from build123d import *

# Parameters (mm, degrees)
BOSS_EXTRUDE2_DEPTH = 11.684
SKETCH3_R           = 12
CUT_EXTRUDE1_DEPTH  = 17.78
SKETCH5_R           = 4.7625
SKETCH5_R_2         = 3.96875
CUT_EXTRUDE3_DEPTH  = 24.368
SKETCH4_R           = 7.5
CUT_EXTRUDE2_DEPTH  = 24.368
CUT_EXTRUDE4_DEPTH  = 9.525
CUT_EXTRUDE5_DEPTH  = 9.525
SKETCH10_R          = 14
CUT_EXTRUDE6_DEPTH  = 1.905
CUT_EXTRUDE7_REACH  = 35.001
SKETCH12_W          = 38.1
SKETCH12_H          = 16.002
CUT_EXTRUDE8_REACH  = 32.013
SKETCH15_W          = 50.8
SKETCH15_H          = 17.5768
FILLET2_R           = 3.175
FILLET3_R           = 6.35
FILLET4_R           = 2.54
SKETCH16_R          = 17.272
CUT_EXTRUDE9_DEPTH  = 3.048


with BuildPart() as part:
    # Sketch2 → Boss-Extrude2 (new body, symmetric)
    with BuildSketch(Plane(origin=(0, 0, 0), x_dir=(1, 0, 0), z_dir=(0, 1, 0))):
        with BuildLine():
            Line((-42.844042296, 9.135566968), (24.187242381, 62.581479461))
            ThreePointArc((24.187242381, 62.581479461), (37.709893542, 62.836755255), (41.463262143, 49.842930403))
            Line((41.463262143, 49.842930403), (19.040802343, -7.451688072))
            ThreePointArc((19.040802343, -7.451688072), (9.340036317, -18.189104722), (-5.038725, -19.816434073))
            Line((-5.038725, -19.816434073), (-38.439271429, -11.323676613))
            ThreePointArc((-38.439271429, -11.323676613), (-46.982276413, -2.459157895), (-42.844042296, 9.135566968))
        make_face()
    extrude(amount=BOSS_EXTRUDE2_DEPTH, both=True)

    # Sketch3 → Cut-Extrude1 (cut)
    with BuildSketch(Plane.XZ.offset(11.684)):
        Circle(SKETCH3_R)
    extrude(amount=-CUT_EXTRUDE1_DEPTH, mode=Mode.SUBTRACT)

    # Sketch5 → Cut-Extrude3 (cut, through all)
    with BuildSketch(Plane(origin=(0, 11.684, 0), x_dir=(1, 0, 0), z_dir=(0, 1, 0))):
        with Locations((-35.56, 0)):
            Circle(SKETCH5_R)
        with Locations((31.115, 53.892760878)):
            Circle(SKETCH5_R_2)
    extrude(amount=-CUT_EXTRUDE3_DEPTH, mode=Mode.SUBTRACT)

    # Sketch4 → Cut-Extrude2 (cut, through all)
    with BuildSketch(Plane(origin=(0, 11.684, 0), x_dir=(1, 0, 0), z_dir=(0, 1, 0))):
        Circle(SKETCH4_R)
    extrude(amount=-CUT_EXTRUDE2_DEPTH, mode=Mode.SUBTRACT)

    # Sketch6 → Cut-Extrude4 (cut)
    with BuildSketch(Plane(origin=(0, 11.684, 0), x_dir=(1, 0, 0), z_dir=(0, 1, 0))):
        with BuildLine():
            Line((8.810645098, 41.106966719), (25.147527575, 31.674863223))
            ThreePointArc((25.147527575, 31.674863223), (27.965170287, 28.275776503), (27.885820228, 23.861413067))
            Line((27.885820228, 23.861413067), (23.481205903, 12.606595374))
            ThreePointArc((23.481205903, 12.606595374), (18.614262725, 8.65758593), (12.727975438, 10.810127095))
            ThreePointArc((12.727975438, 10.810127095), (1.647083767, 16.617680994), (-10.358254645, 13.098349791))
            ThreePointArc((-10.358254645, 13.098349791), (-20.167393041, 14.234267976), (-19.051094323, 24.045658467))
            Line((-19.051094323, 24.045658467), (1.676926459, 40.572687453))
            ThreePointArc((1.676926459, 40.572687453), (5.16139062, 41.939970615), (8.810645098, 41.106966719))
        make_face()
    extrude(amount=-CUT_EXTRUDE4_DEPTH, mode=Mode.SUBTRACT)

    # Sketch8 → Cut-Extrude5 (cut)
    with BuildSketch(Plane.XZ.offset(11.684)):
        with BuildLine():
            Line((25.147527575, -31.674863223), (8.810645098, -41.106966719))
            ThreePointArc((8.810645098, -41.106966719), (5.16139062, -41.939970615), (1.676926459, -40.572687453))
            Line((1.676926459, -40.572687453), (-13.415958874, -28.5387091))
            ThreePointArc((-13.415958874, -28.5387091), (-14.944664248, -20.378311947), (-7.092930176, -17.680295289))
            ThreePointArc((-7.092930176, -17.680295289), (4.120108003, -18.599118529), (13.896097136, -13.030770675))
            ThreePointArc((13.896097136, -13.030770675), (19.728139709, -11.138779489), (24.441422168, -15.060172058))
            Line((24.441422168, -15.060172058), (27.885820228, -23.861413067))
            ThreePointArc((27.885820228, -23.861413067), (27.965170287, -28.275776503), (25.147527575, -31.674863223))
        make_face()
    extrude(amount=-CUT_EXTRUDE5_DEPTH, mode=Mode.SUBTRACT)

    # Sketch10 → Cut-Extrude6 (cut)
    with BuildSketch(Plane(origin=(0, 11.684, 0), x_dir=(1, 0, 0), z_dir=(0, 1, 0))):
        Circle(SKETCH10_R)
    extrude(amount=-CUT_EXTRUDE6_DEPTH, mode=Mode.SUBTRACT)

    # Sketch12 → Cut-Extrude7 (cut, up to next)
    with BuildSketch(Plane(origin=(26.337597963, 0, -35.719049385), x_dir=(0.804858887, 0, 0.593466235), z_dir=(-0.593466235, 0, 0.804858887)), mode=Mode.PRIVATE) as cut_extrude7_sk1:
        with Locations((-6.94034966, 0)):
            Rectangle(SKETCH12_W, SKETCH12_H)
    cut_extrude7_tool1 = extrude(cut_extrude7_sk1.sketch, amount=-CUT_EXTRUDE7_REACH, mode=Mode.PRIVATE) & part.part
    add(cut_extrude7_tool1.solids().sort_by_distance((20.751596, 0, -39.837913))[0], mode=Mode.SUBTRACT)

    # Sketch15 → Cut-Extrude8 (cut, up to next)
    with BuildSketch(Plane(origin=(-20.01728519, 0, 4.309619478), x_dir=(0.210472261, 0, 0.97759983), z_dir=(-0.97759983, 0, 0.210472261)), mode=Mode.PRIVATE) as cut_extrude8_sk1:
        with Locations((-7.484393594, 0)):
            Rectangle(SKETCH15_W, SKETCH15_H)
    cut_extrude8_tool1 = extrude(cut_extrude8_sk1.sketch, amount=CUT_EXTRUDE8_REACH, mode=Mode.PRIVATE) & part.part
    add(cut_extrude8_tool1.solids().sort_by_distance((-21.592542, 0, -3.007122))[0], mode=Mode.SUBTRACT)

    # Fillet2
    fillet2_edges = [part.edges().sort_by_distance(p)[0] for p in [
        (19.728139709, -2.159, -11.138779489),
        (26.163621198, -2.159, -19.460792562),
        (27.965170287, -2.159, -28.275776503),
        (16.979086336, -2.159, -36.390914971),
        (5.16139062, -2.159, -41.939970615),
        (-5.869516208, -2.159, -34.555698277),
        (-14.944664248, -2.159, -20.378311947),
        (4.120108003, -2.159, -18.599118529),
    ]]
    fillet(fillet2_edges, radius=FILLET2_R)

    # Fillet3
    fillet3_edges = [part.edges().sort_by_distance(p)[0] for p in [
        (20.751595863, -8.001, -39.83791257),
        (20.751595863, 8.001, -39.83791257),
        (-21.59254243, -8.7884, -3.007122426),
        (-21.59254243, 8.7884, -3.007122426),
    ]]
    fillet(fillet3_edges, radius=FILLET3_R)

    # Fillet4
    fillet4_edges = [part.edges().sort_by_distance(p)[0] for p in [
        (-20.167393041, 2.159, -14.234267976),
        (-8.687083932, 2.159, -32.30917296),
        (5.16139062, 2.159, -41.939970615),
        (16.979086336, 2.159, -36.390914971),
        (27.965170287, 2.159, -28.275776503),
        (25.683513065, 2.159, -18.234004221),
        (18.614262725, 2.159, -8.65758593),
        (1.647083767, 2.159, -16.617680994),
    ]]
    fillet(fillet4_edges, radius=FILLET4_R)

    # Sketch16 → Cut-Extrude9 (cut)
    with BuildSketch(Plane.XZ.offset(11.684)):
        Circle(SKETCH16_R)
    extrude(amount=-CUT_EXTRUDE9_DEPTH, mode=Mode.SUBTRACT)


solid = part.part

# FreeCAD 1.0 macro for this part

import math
import FreeCAD as App
import Part
import Sketcher
from FreeCAD import Vector
Q = App.Units.Quantity


def edges_at(feature, points):
    """Names of the edges that pass closest to the given points."""
    edges = feature.Shape.Edges
    near = lambda p: min(range(len(edges)), key=lambda i: edges[i].distToShape(Part.Vertex(*p))[0])
    return sorted({f"Edge{near(p) + 1}" for p in points})

doc = App.newDocument("Part")
body = doc.addObject("PartDesign::Body", "Body")

# Sketch on XZ plane
sketch1 = body.newObject("Sketcher::SketchObject", "Sketch")
sketch1.AttachmentSupport = (doc.getObject("XZ_Plane"), [""])
sketch1.MapMode = "FlatFace"
sketch1.addGeometry(Part.LineSegment(Vector(24, -63, 0), Vector(-43, -9, 0)), False)
sketch1.addGeometry(Part.ArcOfCircle(Part.Circle(Vector(-36, 0, 0), Vector(0, 0, 1), 12), math.radians(104), math.radians(231)), False)
sketch1.addGeometry(Part.LineSegment(Vector(-38, 11, 0), Vector(-5, 20, 0)), False)
sketch1.addGeometry(Part.ArcOfCircle(Part.Circle(Vector(0, 0, 0), Vector(0, 0, 1), 20), math.radians(21), math.radians(104)), False)
sketch1.addGeometry(Part.LineSegment(Vector(19, 7, 0), Vector(41, -50, 0)), False)
sketch1.addGeometry(Part.ArcOfCircle(Part.Circle(Vector(31, -54, 0), Vector(0, 0, 1), 11), math.radians(-129), math.radians(21)), False)
sketch1.addConstraint(Sketcher.Constraint("Tangent", 0, 2, 1, 2))
sketch1.addConstraint(Sketcher.Constraint("Tangent", 1, 1, 2, 1))
sketch1.addConstraint(Sketcher.Constraint("Tangent", 2, 2, 3, 2))
sketch1.addConstraint(Sketcher.Constraint("Tangent", 3, 1, 4, 1))
sketch1.addConstraint(Sketcher.Constraint("Tangent", 4, 2, 5, 2))
sketch1.addConstraint(Sketcher.Constraint("Tangent", 5, 1, 0, 1))
sketch1.addConstraint(Sketcher.Constraint("Coincident", 3, 3, -1, 1))
sketch1.addConstraint(Sketcher.Constraint("PointOnObject", 1, 3, -1))
sketch1.addConstraint(Sketcher.Constraint("Radius", 1, Q("0.46 in")))
sketch1.addConstraint(Sketcher.Constraint("Radius", 3, Q("0.805 in")))
sketch1.addConstraint(Sketcher.Constraint("Radius", 5, Q("0.4375 in")))
sketch1.addConstraint(Sketcher.Constraint("DistanceX", 1, 3, -1, 1, Q("1.4 in")))
sketch1.addConstraint(Sketcher.Constraint("DistanceX", -1, 1, 5, 3, Q("1.225 in")))
sketch1.addConstraint(Sketcher.Constraint("DistanceY", 0, 2, 2, 2, Q("28.952001 mm")))
pad1 = body.newObject("PartDesign::Pad", "Pad")
pad1.Profile = sketch1
pad1.Length = Q("0.92 in")
pad1.Midplane = True

# Sketch on XZ plane
sketch2 = body.newObject("Sketcher::SketchObject", "Sketch001")
sketch2.AttachmentSupport = (doc.getObject("XZ_Plane"), [""])
sketch2.MapMode = "FlatFace"
sketch2.AttachmentOffset = App.Placement(Vector(0, 0, 0.46 * 25.4), App.Rotation())
sketch2.addGeometry(Part.Circle(Vector(0, 0, 0), Vector(0, 0, 1), 12), False)
sketch2.addConstraint(Sketcher.Constraint("Coincident", 0, 3, -1, 1))
sketch2.addConstraint(Sketcher.Constraint("Diameter", 0, Q("24 mm")))
pocket1 = body.newObject("PartDesign::Pocket", "Pocket")
pocket1.Profile = sketch2
pocket1.Length = Q("0.7 in")

# Sketch on XZ plane
sketch3 = body.newObject("Sketcher::SketchObject", "Sketch002")
sketch3.AttachmentSupport = (doc.getObject("XZ_Plane"), [""])
sketch3.MapMode = "FlatFace"
sketch3.AttachmentOffset = App.Placement(Vector(0, 0, -0.46 * 25.4), App.Rotation())
sketch3.addGeometry(Part.Circle(Vector(-35.6, 0, 0), Vector(0, 0, 1), 4.8), False)
sketch3.addGeometry(Part.Circle(Vector(31.1, -53.9, 0), Vector(0, 0, 1), 4), False)
sketch3.addConstraint(Sketcher.Constraint("PointOnObject", 0, 3, -1))
sketch3.addConstraint(Sketcher.Constraint("Diameter", 0, Q("0.375 in")))
sketch3.addConstraint(Sketcher.Constraint("Diameter", 1, Q("0.3125 in")))
sketch3.addConstraint(Sketcher.Constraint("DistanceX", 0, 3, -1, 1, Q("1.4 in")))
sketch3.addConstraint(Sketcher.Constraint("DistanceX", -1, 1, 1, 3, Q("1.225 in")))
sketch3.addConstraint(Sketcher.Constraint("DistanceY", 1, 3, -1, 1, Q("53.892761 mm")))
pocket2 = body.newObject("PartDesign::Pocket", "Pocket001")
pocket2.Profile = sketch3
pocket2.Type = "ThroughAll"
pocket2.Reversed = True

# Sketch on XZ plane
sketch4 = body.newObject("Sketcher::SketchObject", "Sketch003")
sketch4.AttachmentSupport = (doc.getObject("XZ_Plane"), [""])
sketch4.MapMode = "FlatFace"
sketch4.AttachmentOffset = App.Placement(Vector(0, 0, -0.46 * 25.4), App.Rotation())
sketch4.addGeometry(Part.Circle(Vector(0, 0, 0), Vector(0, 0, 1), 8), False)
sketch4.addConstraint(Sketcher.Constraint("Coincident", 0, 3, -1, 1))
sketch4.addConstraint(Sketcher.Constraint("Diameter", 0, Q("15 mm")))
pocket3 = body.newObject("PartDesign::Pocket", "Pocket002")
pocket3.Profile = sketch4
pocket3.Type = "ThroughAll"
pocket3.Reversed = True

# Sketch on XZ plane
sketch5 = body.newObject("Sketcher::SketchObject", "Sketch004")
sketch5.AttachmentSupport = (doc.getObject("XZ_Plane"), [""])
sketch5.MapMode = "FlatFace"
sketch5.AttachmentOffset = App.Placement(Vector(0, 0, -0.46 * 25.4), App.Rotation())
sketch5.addGeometry(Part.LineSegment(Vector(25, -32, 0), Vector(9, -41, 0)), False)
sketch5.addGeometry(Part.ArcOfCircle(Part.Circle(Vector(6, -36, 0), Vector(0, 0, 1), 6), math.radians(-129), math.radians(-60)), False)
sketch5.addGeometry(Part.LineSegment(Vector(2, -41, 0), Vector(-19, -24, 0)), False)
sketch5.addGeometry(Part.ArcOfCircle(Part.Circle(Vector(-15, -19, 0), Vector(0, 0, 1), 7), math.radians(52), math.radians(231)), False)
sketch5.addGeometry(Part.ArcOfCircle(Part.Circle(Vector(0, 0, 0), Vector(0, 0, 1), 17), math.radians(-128), math.radians(-40)), False)
sketch5.addGeometry(Part.ArcOfCircle(Part.Circle(Vector(18, -15, 0), Vector(0, 0, 1), 6), math.radians(21), math.radians(140)), False)
sketch5.addGeometry(Part.LineSegment(Vector(23, -13, 0), Vector(28, -24, 0)), False)
sketch5.addGeometry(Part.ArcOfCircle(Part.Circle(Vector(22, -26, 0), Vector(0, 0, 1), 6), math.radians(-60), math.radians(21)), False)
sketch5.addConstraint(Sketcher.Constraint("Tangent", 0, 2, 1, 2))
sketch5.addConstraint(Sketcher.Constraint("Tangent", 1, 1, 2, 1))
sketch5.addConstraint(Sketcher.Constraint("Tangent", 2, 2, 3, 2))
sketch5.addConstraint(Sketcher.Constraint("Tangent", 3, 1, 4, 1))
sketch5.addConstraint(Sketcher.Constraint("Tangent", 4, 2, 5, 2))
sketch5.addConstraint(Sketcher.Constraint("Tangent", 5, 1, 6, 1))
sketch5.addConstraint(Sketcher.Constraint("Tangent", 6, 2, 7, 2))
sketch5.addConstraint(Sketcher.Constraint("Tangent", 7, 1, 0, 1))
sketch5.addConstraint(Sketcher.Constraint("Coincident", 4, 3, -1, 1))
sketch5.addConstraint(Sketcher.Constraint("Equal", 1, 5))
sketch5.addConstraint(Sketcher.Constraint("Equal", 5, 7))
sketch5.addConstraint(Sketcher.Constraint("Radius", 1, Q("0.25 in")))
sketch5.addConstraint(Sketcher.Constraint("Angle", 0, Q("-150 deg")))
sketch5.addConstraint(Sketcher.Constraint("Radius", 3, Q("6.989453 mm")))
sketch5.addConstraint(Sketcher.Constraint("Radius", 4, Q("16.699108 mm")))
sketch5.addConstraint(Sketcher.Constraint("DistanceY", 7, 3, -1, 1, Q("26.175602 mm")))
sketch5.addConstraint(Sketcher.Constraint("DistanceX", 1, 1, 7, 3, Q("20.295601 mm")))
sketch5.addConstraint(Sketcher.Constraint("DistanceX", 3, 1, 1, 3, Q("15.9939 mm")))
sketch5.addConstraint(Sketcher.Constraint("DistanceY", 2, 2, -1, 1, Q("24.045658 mm")))
sketch5.addConstraint(Sketcher.Constraint("DistanceX", -1, 1, 6, 2, Q("27.88582 mm")))
pocket4 = body.newObject("PartDesign::Pocket", "Pocket003")
pocket4.Profile = sketch5
pocket4.Length = Q("0.375 in")
pocket4.Reversed = True

# Sketch on XZ plane
sketch6 = body.newObject("Sketcher::SketchObject", "Sketch005")
sketch6.AttachmentSupport = (doc.getObject("XZ_Plane"), [""])
sketch6.MapMode = "FlatFace"
sketch6.AttachmentOffset = App.Placement(Vector(0, 0, 0.46 * 25.4), App.Rotation())
sketch6.addGeometry(Part.LineSegment(Vector(9, -41, 0), Vector(25, -32, 0)), False)
sketch6.addGeometry(Part.ArcOfCircle(Part.Circle(Vector(22, -26, 0), Vector(0, 0, 1), 6), math.radians(-60), math.radians(21)), False)
sketch6.addGeometry(Part.LineSegment(Vector(28, -24, 0), Vector(24, -15, 0)), False)
sketch6.addGeometry(Part.ArcOfCircle(Part.Circle(Vector(19, -17, 0), Vector(0, 0, 1), 6), math.radians(21), math.radians(137)), False)
sketch6.addGeometry(Part.ArcOfCircle(Part.Circle(Vector(0, 0, 0), Vector(0, 0, 1), 19), math.radians(-112), math.radians(-43)), False)
sketch6.addGeometry(Part.ArcOfCircle(Part.Circle(Vector(-9, -24, 0), Vector(0, 0, 1), 6), math.radians(68), math.radians(231)), False)
sketch6.addGeometry(Part.LineSegment(Vector(-13, -29, 0), Vector(2, -41, 0)), False)
sketch6.addGeometry(Part.ArcOfCircle(Part.Circle(Vector(6, -36, 0), Vector(0, 0, 1), 6), math.radians(-129), math.radians(-60)), False)
sketch6.addConstraint(Sketcher.Constraint("Tangent", 0, 2, 1, 1))
sketch6.addConstraint(Sketcher.Constraint("Tangent", 1, 2, 2, 1))
sketch6.addConstraint(Sketcher.Constraint("Tangent", 2, 2, 3, 1))
sketch6.addConstraint(Sketcher.Constraint("Tangent", 3, 2, 4, 2))
sketch6.addConstraint(Sketcher.Constraint("Tangent", 4, 1, 5, 1))
sketch6.addConstraint(Sketcher.Constraint("Tangent", 5, 2, 6, 1))
sketch6.addConstraint(Sketcher.Constraint("Tangent", 6, 2, 7, 1))
sketch6.addConstraint(Sketcher.Constraint("Tangent", 7, 2, 0, 1))
sketch6.addConstraint(Sketcher.Constraint("Coincident", 4, 3, -1, 1))
sketch6.addConstraint(Sketcher.Constraint("Equal", 1, 3))
sketch6.addConstraint(Sketcher.Constraint("Equal", 3, 5))
sketch6.addConstraint(Sketcher.Constraint("Equal", 5, 7))
sketch6.addConstraint(Sketcher.Constraint("Radius", 1, Q("0.25 in")))
sketch6.addConstraint(Sketcher.Constraint("Radius", 4, Q("0.75 in")))
sketch6.addConstraint(Sketcher.Constraint("Angle", 0, Q("30 deg")))
sketch6.addConstraint(Sketcher.Constraint("DistanceY", 1, 3, -1, 1, Q("26.175602 mm")))
sketch6.addConstraint(Sketcher.Constraint("DistanceX", 3, 3, 1, 3, Q("3.444398 mm")))
sketch6.addConstraint(Sketcher.Constraint("DistanceX", 6, 2, 1, 3, Q("20.295601 mm")))
sketch6.addConstraint(Sketcher.Constraint("Distance", 2, Q("9.451229 mm")))
sketch6.addConstraint(Sketcher.Constraint("DistanceX", 5, 3, -1, 1, Q("9.45724 mm")))
pocket5 = body.newObject("PartDesign::Pocket", "Pocket004")
pocket5.Profile = sketch6
pocket5.Length = Q("0.375 in")

# Sketch on XZ plane
sketch7 = body.newObject("Sketcher::SketchObject", "Sketch006")
sketch7.AttachmentSupport = (doc.getObject("XZ_Plane"), [""])
sketch7.MapMode = "FlatFace"
sketch7.AttachmentOffset = App.Placement(Vector(0, 0, -0.46 * 25.4), App.Rotation())
sketch7.addGeometry(Part.Circle(Vector(0, 0, 0), Vector(0, 0, 1), 14), False)
sketch7.addConstraint(Sketcher.Constraint("Coincident", 0, 3, -1, 1))
sketch7.addConstraint(Sketcher.Constraint("Diameter", 0, Q("28 mm")))
pocket6 = body.newObject("PartDesign::Pocket", "Pocket005")
pocket6.Profile = sketch7
pocket6.Length = Q("0.075 in")
pocket6.Reversed = True

# Sketch on an angled plane
sketch8 = body.newObject("Sketcher::SketchObject", "Sketch007")
sketch8.Placement = App.Placement(Vector(26.337598, 0, -35.719049), App.Rotation(Vector(0.804858887, 0, 0.593466235), Vector(0, 1, 0), Vector(-0.593466235, 0, 0.804858887), "ZXY"))
sketch8.addGeometry(Part.LineSegment(Vector(-26, 8, 0), Vector(-26, -8, 0)), False)
sketch8.addGeometry(Part.LineSegment(Vector(-26, -8, 0), Vector(12, -8, 0)), False)
sketch8.addGeometry(Part.LineSegment(Vector(12, -8, 0), Vector(12, 8, 0)), False)
sketch8.addGeometry(Part.LineSegment(Vector(12, 8, 0), Vector(-26, 8, 0)), False)
sketch8.addConstraint(Sketcher.Constraint("Coincident", 0, 2, 1, 1))
sketch8.addConstraint(Sketcher.Constraint("Coincident", 1, 2, 2, 1))
sketch8.addConstraint(Sketcher.Constraint("Coincident", 2, 2, 3, 1))
sketch8.addConstraint(Sketcher.Constraint("Coincident", 3, 2, 0, 1))
sketch8.addConstraint(Sketcher.Constraint("Vertical", 0))
sketch8.addConstraint(Sketcher.Constraint("Horizontal", 1))
sketch8.addConstraint(Sketcher.Constraint("Vertical", 2))
sketch8.addConstraint(Sketcher.Constraint("Horizontal", 3))
sketch8.addConstraint(Sketcher.Constraint("DistanceX", 1, 1, 1, 2, Q("1.5 in")))
sketch8.addConstraint(Sketcher.Constraint("DistanceY", 0, 2, 0, 1, Q("0.63 in")))
sketch8.addConstraint(Sketcher.Constraint("DistanceY", 0, 2, -1, 1, Q("0.315 in")))
sketch8.addConstraint(Sketcher.Constraint("DistanceX", 0, 2, -1, 1, Q("25.99035 mm")))
pocket7 = body.newObject("PartDesign::Pocket", "Pocket006")
pocket7.Profile = sketch8
pocket7.Type = "UpToFirst"

# Sketch on an angled plane
sketch9 = body.newObject("Sketcher::SketchObject", "Sketch008")
sketch9.Placement = App.Placement(Vector(-20.017285, 0, 4.309619), App.Rotation(Vector(0.210472261, 0, 0.97759983), Vector(0, 1, 0), Vector(-0.97759983, 0, 0.210472261), "ZXY"))
sketch9.addGeometry(Part.LineSegment(Vector(-33, 9, 0), Vector(-33, -9, 0)), False)
sketch9.addGeometry(Part.LineSegment(Vector(-33, -9, 0), Vector(18, -9, 0)), False)
sketch9.addGeometry(Part.LineSegment(Vector(18, -9, 0), Vector(18, 9, 0)), False)
sketch9.addGeometry(Part.LineSegment(Vector(18, 9, 0), Vector(-33, 9, 0)), False)
sketch9.addConstraint(Sketcher.Constraint("Coincident", 0, 2, 1, 1))
sketch9.addConstraint(Sketcher.Constraint("Coincident", 1, 2, 2, 1))
sketch9.addConstraint(Sketcher.Constraint("Coincident", 2, 2, 3, 1))
sketch9.addConstraint(Sketcher.Constraint("Coincident", 3, 2, 0, 1))
sketch9.addConstraint(Sketcher.Constraint("Vertical", 0))
sketch9.addConstraint(Sketcher.Constraint("Horizontal", 1))
sketch9.addConstraint(Sketcher.Constraint("Vertical", 2))
sketch9.addConstraint(Sketcher.Constraint("Horizontal", 3))
sketch9.addConstraint(Sketcher.Constraint("DistanceX", 1, 1, 1, 2, Q("2 in")))
sketch9.addConstraint(Sketcher.Constraint("DistanceY", 0, 2, 0, 1, Q("0.692 in")))
sketch9.addConstraint(Sketcher.Constraint("DistanceY", 0, 2, -1, 1, Q("0.346 in")))
sketch9.addConstraint(Sketcher.Constraint("DistanceX", 0, 2, -1, 1, Q("32.884394 mm")))
pocket8 = body.newObject("PartDesign::Pocket", "Pocket007")
pocket8.Profile = sketch9
pocket8.Type = "UpToFirst"
pocket8.Reversed = True
doc.recompute()

fillet = body.newObject("PartDesign::Fillet", "Fillet")
fillet.Base = (pocket8, edges_at(pocket8, [
    (19.728, -2.159, -11.139),
    (26.164, -2.159, -19.461),
    (27.965, -2.159, -28.276),
    (16.979, -2.159, -36.391),
    (5.161, -2.159, -41.94),
    (-5.87, -2.159, -34.556),
    (-14.945, -2.159, -20.378),
    (4.12, -2.159, -18.599),
]))
fillet.Radius = Q("0.125 in")
doc.recompute()

fillet2 = body.newObject("PartDesign::Fillet", "Fillet001")
fillet2.Base = (fillet, edges_at(fillet, [
    (20.752, -8.001, -39.838),
    (20.752, 8.001, -39.838),
    (-21.593, -8.788, -3.007),
    (-21.593, 8.788, -3.007),
]))
fillet2.Radius = Q("0.25 in")
doc.recompute()

fillet3 = body.newObject("PartDesign::Fillet", "Fillet002")
fillet3.Base = (fillet2, edges_at(fillet2, [
    (-20.167, 2.159, -14.234),
    (-8.687, 2.159, -32.309),
    (5.161, 2.159, -41.94),
    (16.979, 2.159, -36.391),
    (27.965, 2.159, -28.276),
    (25.684, 2.159, -18.234),
    (18.614, 2.159, -8.658),
    (1.647, 2.159, -16.618),
]))
fillet3.Radius = Q("0.1 in")

# Sketch on XZ plane
sketch10 = body.newObject("Sketcher::SketchObject", "Sketch009")
sketch10.AttachmentSupport = (doc.getObject("XZ_Plane"), [""])
sketch10.MapMode = "FlatFace"
sketch10.AttachmentOffset = App.Placement(Vector(0, 0, 0.46 * 25.4), App.Rotation())
sketch10.addGeometry(Part.Circle(Vector(0, 0, 0), Vector(0, 0, 1), 17), False)
sketch10.addConstraint(Sketcher.Constraint("Coincident", 0, 3, -1, 1))
sketch10.addConstraint(Sketcher.Constraint("Diameter", 0, Q("1.36 in")))
pocket9 = body.newObject("PartDesign::Pocket", "Pocket008")
pocket9.Profile = sketch10
pocket9.Length = Q("0.12 in")

doc.recompute()
